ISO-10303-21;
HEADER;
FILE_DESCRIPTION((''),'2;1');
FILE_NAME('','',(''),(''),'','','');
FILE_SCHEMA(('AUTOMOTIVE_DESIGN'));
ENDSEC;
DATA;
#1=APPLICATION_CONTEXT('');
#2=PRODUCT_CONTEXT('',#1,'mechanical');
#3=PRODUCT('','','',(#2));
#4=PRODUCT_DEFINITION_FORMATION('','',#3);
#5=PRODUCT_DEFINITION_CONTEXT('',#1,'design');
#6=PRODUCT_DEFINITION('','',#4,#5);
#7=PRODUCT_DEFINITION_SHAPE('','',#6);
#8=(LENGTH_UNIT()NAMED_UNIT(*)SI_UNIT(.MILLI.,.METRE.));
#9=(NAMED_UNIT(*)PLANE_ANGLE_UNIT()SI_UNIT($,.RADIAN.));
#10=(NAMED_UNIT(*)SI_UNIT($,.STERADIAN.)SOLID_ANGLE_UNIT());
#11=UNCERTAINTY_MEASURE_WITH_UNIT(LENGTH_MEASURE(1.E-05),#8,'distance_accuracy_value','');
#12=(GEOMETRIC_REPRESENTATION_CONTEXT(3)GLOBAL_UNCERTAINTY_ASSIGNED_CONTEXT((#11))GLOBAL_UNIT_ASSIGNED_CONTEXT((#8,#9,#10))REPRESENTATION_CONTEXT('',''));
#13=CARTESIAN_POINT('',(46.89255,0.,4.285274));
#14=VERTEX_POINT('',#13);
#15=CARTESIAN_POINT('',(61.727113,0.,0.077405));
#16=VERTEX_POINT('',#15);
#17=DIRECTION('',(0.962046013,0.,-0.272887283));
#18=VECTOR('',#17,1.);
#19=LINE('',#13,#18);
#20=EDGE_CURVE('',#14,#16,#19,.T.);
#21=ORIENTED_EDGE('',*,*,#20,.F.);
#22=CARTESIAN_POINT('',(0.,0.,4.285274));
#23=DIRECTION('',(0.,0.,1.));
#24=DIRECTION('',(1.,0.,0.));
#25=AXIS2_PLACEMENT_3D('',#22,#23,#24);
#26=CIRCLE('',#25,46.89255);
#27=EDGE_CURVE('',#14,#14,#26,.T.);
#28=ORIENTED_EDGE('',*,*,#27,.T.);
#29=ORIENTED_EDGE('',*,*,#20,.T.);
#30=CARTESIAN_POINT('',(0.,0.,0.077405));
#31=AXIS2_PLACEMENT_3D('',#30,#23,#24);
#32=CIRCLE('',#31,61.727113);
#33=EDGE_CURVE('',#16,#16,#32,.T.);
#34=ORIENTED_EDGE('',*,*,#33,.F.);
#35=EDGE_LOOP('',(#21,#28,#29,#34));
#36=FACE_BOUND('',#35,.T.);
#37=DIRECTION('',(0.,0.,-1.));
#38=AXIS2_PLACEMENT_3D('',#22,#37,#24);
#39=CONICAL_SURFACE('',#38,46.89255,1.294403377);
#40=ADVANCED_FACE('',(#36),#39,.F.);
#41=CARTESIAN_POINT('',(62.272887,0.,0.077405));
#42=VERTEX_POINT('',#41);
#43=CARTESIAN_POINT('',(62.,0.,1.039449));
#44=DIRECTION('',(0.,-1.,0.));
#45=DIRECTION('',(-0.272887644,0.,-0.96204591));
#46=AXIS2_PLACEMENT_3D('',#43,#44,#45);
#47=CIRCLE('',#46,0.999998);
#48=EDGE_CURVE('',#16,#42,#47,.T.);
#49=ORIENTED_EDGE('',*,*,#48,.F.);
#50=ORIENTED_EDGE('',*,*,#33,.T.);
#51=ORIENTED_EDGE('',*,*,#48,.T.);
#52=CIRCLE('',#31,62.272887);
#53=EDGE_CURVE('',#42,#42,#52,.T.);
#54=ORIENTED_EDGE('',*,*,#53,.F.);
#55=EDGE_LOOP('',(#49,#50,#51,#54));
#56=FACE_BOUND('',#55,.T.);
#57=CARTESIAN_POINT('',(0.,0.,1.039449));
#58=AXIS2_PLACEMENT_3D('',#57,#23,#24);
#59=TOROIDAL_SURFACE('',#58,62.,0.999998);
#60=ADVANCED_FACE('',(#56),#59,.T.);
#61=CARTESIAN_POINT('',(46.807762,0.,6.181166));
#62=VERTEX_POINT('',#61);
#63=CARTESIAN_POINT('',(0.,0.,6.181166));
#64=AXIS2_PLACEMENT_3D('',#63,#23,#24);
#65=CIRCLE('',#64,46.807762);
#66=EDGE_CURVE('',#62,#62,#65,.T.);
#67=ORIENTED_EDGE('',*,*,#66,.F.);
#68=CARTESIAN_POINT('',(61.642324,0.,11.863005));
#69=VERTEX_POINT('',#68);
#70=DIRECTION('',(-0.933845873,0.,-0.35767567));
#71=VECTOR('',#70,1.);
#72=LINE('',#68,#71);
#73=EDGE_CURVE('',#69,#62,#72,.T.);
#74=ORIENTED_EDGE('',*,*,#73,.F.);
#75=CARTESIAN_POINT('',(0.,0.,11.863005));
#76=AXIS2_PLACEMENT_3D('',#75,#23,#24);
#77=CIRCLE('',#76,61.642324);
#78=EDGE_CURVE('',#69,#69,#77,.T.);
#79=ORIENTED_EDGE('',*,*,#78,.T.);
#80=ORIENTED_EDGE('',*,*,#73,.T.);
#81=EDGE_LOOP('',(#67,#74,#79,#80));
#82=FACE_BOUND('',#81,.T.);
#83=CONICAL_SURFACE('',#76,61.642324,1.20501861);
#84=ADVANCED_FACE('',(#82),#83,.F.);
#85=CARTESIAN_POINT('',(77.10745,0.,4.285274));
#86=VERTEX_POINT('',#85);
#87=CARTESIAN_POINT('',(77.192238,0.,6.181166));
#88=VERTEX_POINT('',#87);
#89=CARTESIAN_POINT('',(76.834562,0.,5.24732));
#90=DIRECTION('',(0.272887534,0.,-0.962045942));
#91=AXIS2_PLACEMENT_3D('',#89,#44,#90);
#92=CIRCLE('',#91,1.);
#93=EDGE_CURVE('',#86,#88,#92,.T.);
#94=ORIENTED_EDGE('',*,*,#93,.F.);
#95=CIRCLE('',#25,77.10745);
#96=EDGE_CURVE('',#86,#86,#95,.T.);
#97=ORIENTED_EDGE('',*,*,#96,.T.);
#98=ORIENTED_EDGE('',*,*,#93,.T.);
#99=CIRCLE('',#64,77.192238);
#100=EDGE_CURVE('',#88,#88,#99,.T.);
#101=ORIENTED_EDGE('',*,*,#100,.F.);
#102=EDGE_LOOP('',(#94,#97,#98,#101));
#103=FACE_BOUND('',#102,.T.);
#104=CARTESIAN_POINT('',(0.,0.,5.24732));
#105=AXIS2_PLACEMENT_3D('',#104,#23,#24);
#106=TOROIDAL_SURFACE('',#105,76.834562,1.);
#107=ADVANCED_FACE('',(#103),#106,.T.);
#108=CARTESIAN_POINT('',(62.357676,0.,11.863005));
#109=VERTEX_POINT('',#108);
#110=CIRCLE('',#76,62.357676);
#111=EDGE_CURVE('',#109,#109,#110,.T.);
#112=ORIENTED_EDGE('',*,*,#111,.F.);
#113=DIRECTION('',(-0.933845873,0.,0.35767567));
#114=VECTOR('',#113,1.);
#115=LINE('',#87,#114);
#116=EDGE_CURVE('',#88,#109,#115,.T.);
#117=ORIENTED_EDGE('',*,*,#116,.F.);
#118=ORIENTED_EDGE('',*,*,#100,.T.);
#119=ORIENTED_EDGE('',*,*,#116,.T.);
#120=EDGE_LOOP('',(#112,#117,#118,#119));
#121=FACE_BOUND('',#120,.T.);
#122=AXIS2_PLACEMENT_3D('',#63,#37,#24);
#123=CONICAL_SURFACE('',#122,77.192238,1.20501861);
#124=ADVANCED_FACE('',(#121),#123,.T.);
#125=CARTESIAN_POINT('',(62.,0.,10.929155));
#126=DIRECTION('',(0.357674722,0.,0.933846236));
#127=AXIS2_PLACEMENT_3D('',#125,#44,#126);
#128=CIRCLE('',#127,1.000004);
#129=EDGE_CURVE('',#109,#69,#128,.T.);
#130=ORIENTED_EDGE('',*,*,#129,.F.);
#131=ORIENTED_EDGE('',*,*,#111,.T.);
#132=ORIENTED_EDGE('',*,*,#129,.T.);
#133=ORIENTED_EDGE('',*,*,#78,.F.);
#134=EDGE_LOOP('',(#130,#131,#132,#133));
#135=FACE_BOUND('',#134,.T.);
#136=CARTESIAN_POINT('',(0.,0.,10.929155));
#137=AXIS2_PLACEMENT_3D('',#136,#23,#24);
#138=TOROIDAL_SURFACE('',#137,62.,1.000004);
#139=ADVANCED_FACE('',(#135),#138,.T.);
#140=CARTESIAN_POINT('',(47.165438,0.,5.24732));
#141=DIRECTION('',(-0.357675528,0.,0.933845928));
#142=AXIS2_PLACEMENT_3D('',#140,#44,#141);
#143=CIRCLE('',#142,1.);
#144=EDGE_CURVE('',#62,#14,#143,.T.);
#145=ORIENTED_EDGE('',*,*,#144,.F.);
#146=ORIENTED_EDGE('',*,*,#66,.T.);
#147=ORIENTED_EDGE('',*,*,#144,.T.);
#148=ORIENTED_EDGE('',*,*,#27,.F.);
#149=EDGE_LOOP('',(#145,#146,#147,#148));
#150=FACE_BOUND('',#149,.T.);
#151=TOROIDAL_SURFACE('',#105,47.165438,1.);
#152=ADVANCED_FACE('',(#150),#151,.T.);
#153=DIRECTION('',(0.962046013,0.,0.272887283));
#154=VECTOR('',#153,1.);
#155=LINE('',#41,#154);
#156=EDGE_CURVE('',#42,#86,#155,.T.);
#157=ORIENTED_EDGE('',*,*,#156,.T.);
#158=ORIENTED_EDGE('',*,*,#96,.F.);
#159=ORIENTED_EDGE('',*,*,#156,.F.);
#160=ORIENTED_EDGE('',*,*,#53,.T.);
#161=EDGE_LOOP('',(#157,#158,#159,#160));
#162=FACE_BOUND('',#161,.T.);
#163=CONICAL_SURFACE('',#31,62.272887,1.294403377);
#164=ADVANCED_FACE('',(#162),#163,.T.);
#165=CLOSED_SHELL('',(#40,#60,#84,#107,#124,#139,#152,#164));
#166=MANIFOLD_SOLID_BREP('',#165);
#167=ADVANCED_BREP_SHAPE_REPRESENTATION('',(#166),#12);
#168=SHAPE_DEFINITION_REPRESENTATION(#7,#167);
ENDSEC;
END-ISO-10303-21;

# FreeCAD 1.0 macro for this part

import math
import FreeCAD as App
import Part
import Sketcher

doc = App.newDocument("Part")
params = doc.addObject("Spreadsheet::Sheet", "Params")
for row, (alias, value) in enumerate([
    ("sketch1_radius", "1 mm"),
    ("revolution_angle", "360 deg"),
], start=1):
    params.set(f"A{row}", alias)
    params.set(f"B{row}", "=" + value)
    params.setAlias(f"B{row}", alias)

body = doc.addObject("PartDesign::Body", "Body")

# Sketch on XZ plane
sketch1 = body.newObject("Sketcher::SketchObject", "Sketch")
sketch1.AttachmentSupport = (doc.getObject("XZ_Plane"), [""])
sketch1.MapMode = "FlatFace"
sketch1.addGeometry([
    Part.LineSegment(App.Vector(62.272887, 0.077405, 0), App.Vector(77.10745, 4.285274, 0)),  # 0
    Part.ArcOfCircle(Part.Circle(App.Vector(76.834562, 5.24732, 0), App.Vector(0, 0, 1), 1), math.radians(-74.163836), math.radians(69.042489)),  # 1
    Part.LineSegment(App.Vector(77.192238, 6.181166, 0), App.Vector(62.357676, 11.863005, 0)),  # 2
    Part.ArcOfCircle(Part.Circle(App.Vector(62, 10.929155, 0), App.Vector(0, 0, 1), 1.000004), math.radians(69.042539), math.radians(110.957461)),  # 3
    Part.LineSegment(App.Vector(61.642324, 11.863005, 0), App.Vector(46.807762, 6.181166, 0)),  # 4
    Part.ArcOfCircle(Part.Circle(App.Vector(47.165438, 5.24732, 0), App.Vector(0, 0, 1), 1), math.radians(110.957511), math.radians(254.163836)),  # 5
    Part.LineSegment(App.Vector(46.89255, 4.285274, 0), App.Vector(61.727113, 0.077405, 0)),  # 6
    Part.ArcOfCircle(Part.Circle(App.Vector(62, 1.039449, 0), App.Vector(0, 0, 1), 0.999998), math.radians(-105.836171), math.radians(-74.163829)),  # 7
], False)
sketch1.addConstraint([
    Sketcher.Constraint("Tangent", 0, 2, 1, 1),
    Sketcher.Constraint("Tangent", 1, 2, 2, 1),
    Sketcher.Constraint("Tangent", 2, 2, 3, 1),
    Sketcher.Constraint("Tangent", 3, 2, 4, 1),
    Sketcher.Constraint("Tangent", 4, 2, 5, 1),
    Sketcher.Constraint("Tangent", 5, 2, 6, 1),
    Sketcher.Constraint("Tangent", 6, 2, 7, 1),
    Sketcher.Constraint("Tangent", 7, 2, 0, 1),
    Sketcher.Constraint("Equal", 1, 5),
    Sketcher.Constraint("Horizontal", 1, 3, 5, 3),
    Sketcher.Constraint("Horizontal", 2, 2, 3, 2),
    Sketcher.Constraint("Horizontal", 0, 2, 5, 2),
    Sketcher.Constraint("Radius", 1, 1.0),
    Sketcher.Constraint("DistanceX", -1, 1, 3, 3, 62.0),
    Sketcher.Constraint("Radius", 3, 1.000004),
    Sketcher.Constraint("Radius", 7, 0.999998),
    Sketcher.Constraint("DistanceX", 5, 3, 1, 2, 30.0268),
    Sketcher.Constraint("DistanceY", 6, 2, 3, 2, 11.7856),
    Sketcher.Constraint("Distance", 2, 15.88545),
    Sketcher.Constraint("DistanceY", -1, 1, 1, 3, 5.24732),
])
sketch1.setExpression("Constraints[12]", "Params.sketch1_radius")
revolution = body.newObject("PartDesign::Revolution", "Revolution")
revolution.Profile = sketch1
revolution.ReferenceAxis = (sketch1, ["V_Axis"])
revolution.setExpression("Angle", "Params.revolution_angle")

doc.recompute()
